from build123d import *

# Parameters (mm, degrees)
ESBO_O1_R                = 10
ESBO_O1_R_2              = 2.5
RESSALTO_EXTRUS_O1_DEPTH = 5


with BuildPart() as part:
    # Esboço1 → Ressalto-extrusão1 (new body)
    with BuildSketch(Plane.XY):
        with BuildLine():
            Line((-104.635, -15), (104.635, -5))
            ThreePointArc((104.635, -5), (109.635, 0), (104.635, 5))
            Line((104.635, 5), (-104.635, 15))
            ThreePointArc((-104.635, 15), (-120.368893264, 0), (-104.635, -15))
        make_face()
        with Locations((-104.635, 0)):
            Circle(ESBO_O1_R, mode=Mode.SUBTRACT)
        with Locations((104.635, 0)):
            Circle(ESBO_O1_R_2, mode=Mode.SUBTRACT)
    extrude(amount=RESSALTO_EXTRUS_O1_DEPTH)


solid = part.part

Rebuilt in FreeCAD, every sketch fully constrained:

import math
import FreeCAD as App
import Part
import Sketcher

V = App.Vector
Q = App.Units.Quantity

doc = App.newDocument("Part")
body = doc.addObject("PartDesign::Body", "Body")

sketch1 = body.newObject("Sketcher::SketchObject", "Sketch")
sketch1.AttachmentSupport = (doc.getObject("XY_Plane"), [""])
sketch1.MapMode = "FlatFace"
sketch1.addGeometry([
    Part.LineSegment(V(-104.635, -15, 0), V(104.635, -5, 0)),
    Part.ArcOfCircle(Part.Circle(V(104.635, 0, 0), V(0, 0, 1), 5), math.radians(-90), math.radians(90)),
    Part.LineSegment(V(104.635, 5, 0), V(-104.635, 15, 0)),
    Part.ArcOfCircle(Part.Circle(V(-105.351777, 0, 0), V(0, 0, 1), 15.017116), math.radians(87.264193), math.radians(272.735807)),
    Part.Circle(V(-104.635, 0, 0), V(0, 0, 1), 10),
    Part.Circle(V(104.635, 0, 0), V(0, 0, 1), 2.5),
], False)
sketch1.addConstraint([
    Sketcher.Constraint("Coincident", 0, 2, 1, 1),
    Sketcher.Constraint("Coincident", 1, 2, 2, 1),
    Sketcher.Constraint("Tangent", 2, 2, 3, 1),
    Sketcher.Constraint("Tangent", 3, 2, 0, 1),
    Sketcher.Constraint("Coincident", 5, 3, 1, 3),
    Sketcher.Constraint("Symmetric", 1, 3, 4, 3, -1, 1),
    Sketcher.Constraint("Symmetric", 0, 2, 1, 2, -1),
    Sketcher.Constraint("PointOnObject", 3, 3, -1),
    Sketcher.Constraint("Vertical", 5, 3, 0, 2),
    Sketcher.Constraint("Vertical", 4, 3, 2, 2),
    Sketcher.Constraint("Diameter", 4, Q("20 mm")),
    Sketcher.Constraint("Diameter", 5, Q("5 mm")),
    Sketcher.Constraint("Radius", 1, Q("5 mm")),
    Sketcher.Constraint("DistanceY", -1, 1, 2, 2, Q("15 mm")),
    Sketcher.Constraint("DistanceX", 4, 3, 1, 3, Q("209.27 mm")),
])
pad1 = body.newObject("PartDesign::Pad", "Pad")
pad1.Profile = sketch1
pad1.Length = 5

doc.recompute()
